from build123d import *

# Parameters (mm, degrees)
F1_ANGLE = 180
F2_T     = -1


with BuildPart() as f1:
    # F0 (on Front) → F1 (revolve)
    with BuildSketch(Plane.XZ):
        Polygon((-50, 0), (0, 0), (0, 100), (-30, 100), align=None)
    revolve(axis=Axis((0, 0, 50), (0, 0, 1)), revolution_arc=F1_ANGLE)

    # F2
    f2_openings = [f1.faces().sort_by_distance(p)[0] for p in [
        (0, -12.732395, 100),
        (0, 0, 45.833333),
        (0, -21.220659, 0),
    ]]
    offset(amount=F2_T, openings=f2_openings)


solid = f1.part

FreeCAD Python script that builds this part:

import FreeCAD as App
import Part
import Sketcher

V = App.Vector


def faces_at(feature, points):
    """Names of the faces that lie closest to the given points."""
    faces = feature.Shape.Faces
    near = lambda p: min(range(len(faces)), key=lambda i: faces[i].distToShape(Part.Vertex(*p))[0])
    return sorted({f"Face{near(p) + 1}" for p in points})

doc = App.newDocument("Part")
body = doc.addObject("PartDesign::Body", "Body")

# Sketch on XZ plane
sketch1 = doc.addObject("Sketcher::SketchObject", "Sketch")
body.addObject(sketch1)
sketch1.AttachmentSupport = (doc.XZ_Plane, [""])
sketch1.MapMode = "FlatFace"
sketch1.addGeometry([
    Part.LineSegment(V(-50, 0, 0), V(0, 0, 0)),
    Part.LineSegment(V(0, 0, 0), V(0, 100, 0)),
    Part.LineSegment(V(0, 100, 0), V(-30, 100, 0)),
    Part.LineSegment(V(-30, 100, 0), V(-50, 0, 0)),
], False)
sketch1.addConstraint([
    Sketcher.Constraint("Coincident", 0, 2, 1, 1),
    Sketcher.Constraint("Coincident", 1, 2, 2, 1),
    Sketcher.Constraint("Coincident", 2, 2, 3, 1),
    Sketcher.Constraint("Coincident", 3, 2, 0, 1),
    Sketcher.Constraint("Horizontal", 0),
    Sketcher.Constraint("Vertical", 1),
    Sketcher.Constraint("Horizontal", 2),
    Sketcher.Constraint("Coincident", 0, 2, -1, 1),
    Sketcher.Constraint("DistanceX", 0, 1, 0, 2, 50.0),
    Sketcher.Constraint("DistanceX", 2, 2, 2, 1, 30.0),
    Sketcher.Constraint("DistanceY", 1, 1, 1, 2, 100.0),
])
revolution = doc.addObject("PartDesign::Revolution", "Revolution")
body.addObject(revolution)
revolution.Profile = sketch1
revolution.ReferenceAxis = (sketch1, ["V_Axis"])
revolution.Angle = 180
doc.recompute()

thickness = doc.addObject("PartDesign::Thickness", "Thickness")
body.addObject(thickness)
thickness.Base = (revolution, faces_at(revolution, [(0, -15, 100), (0, 0, 50), (0, -25, 0)]))
thickness.Value = 1
thickness.Reversed = True
thickness.Join = "Arc"

doc.recompute()
